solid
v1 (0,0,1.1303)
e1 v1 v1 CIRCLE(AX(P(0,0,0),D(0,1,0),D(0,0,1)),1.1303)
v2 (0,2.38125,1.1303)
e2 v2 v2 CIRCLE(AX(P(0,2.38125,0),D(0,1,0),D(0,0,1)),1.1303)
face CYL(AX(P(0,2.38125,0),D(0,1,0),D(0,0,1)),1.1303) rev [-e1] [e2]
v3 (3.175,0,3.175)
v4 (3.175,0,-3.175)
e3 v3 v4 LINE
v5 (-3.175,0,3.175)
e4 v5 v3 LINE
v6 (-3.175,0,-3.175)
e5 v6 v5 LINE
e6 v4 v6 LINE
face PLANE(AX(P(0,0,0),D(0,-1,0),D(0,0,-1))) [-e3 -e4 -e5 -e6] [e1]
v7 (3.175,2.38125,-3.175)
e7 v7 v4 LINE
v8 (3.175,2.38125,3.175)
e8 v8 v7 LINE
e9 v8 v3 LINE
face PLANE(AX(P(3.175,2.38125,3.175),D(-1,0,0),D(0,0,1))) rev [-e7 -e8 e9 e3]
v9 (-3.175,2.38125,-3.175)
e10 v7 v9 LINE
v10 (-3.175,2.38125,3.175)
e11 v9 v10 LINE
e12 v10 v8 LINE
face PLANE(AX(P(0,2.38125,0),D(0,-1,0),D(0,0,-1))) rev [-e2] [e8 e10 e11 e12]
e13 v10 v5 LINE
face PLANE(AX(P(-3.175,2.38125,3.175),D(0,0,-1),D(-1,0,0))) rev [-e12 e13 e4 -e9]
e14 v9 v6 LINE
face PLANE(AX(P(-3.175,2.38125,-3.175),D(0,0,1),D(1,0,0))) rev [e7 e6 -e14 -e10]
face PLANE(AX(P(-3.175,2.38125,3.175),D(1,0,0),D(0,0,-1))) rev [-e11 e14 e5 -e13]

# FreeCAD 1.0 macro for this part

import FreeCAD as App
import Part
import Sketcher
Q = App.Units.Quantity

doc = App.newDocument("Part")
params = doc.addObject("Spreadsheet::Sheet", "Params")
for row, (alias, value) in enumerate([
    ("sketch1_width", "0.25 in"),
    ("pad1_length", "0.09375 in"),
    ("sketch2_diameter", "0.089 in"),
    ("hole_diameter", "0.089 in"),
], start=1):
    params.set(f"A{row}", alias)
    params.set(f"B{row}", "=" + value)
    params.setAlias(f"B{row}", alias)

body = doc.addObject("PartDesign::Body", "Body")

sketch1 = doc.addObject("Sketcher::SketchObject", "Sketch")
body.addObject(sketch1)
sketch1.AttachmentSupport = (doc.XZ_Plane, [""])
sketch1.MapMode = "FlatFace"
sketch1.addGeometry(Part.LineSegment(App.Vector(-3, -3, 0), App.Vector(-3, 3, 0)), False)
sketch1.addGeometry(Part.LineSegment(App.Vector(-3, 3, 0), App.Vector(3, 3, 0)), False)
sketch1.addGeometry(Part.LineSegment(App.Vector(3, 3, 0), App.Vector(3, -3, 0)), False)
sketch1.addGeometry(Part.LineSegment(App.Vector(3, -3, 0), App.Vector(-3, -3, 0)), False)
sketch1.addConstraint(Sketcher.Constraint("Coincident", 0, 2, 1, 1))
sketch1.addConstraint(Sketcher.Constraint("Coincident", 1, 2, 2, 1))
sketch1.addConstraint(Sketcher.Constraint("Coincident", 2, 2, 3, 1))
sketch1.addConstraint(Sketcher.Constraint("Coincident", 3, 2, 0, 1))
sketch1.addConstraint(Sketcher.Constraint("Vertical", 0))
sketch1.addConstraint(Sketcher.Constraint("Horizontal", 1))
sketch1.addConstraint(Sketcher.Constraint("Vertical", 2))
sketch1.addConstraint(Sketcher.Constraint("Horizontal", 3))
sketch1.addConstraint(Sketcher.Constraint("Symmetric", 0, 2, 2, 2, -1, 1))
sketch1.addConstraint(Sketcher.Constraint("Equal", 3, 0))
sketch1.addConstraint(Sketcher.Constraint("DistanceX", 1, 1, 1, 2, Q("0.25 in")))
sketch1.setExpression("Constraints[10]", "Params.sketch1_width")
pad1 = doc.addObject("PartDesign::Pad", "Pad")
body.addObject(pad1)
pad1.Profile = sketch1
pad1.setExpression("Length", "Params.pad1_length")
pad1.Reversed = True

sketch2 = doc.addObject("Sketcher::SketchObject", "Sketch001")
body.addObject(sketch2)
sketch2.AttachmentSupport = (doc.XZ_Plane, [""])
sketch2.MapMode = "FlatFace"
sketch2.AttachmentOffset = App.Placement(App.Vector(0, 0, -0.09375 * 25.4), App.Rotation())
sketch2.addGeometry(Part.Circle(App.Vector(0, 0, 0), App.Vector(0, 0, 1), 1.1), False)
sketch2.addConstraint(Sketcher.Constraint("Coincident", 0, 3, -1, 1))
sketch2.addConstraint(Sketcher.Constraint("Diameter", 0, Q("0.089 in")))
sketch2.setExpression("Constraints[1]", "Params.sketch2_diameter")
doc.recompute()
hole = doc.addObject("PartDesign::Hole", "Hole")
body.addObject(hole)
hole.Profile = sketch2
hole.ThreadType = "None"
hole.setExpression("Diameter", "Params.hole_diameter")
hole.DepthType = "ThroughAll"
hole.Reversed = True

doc.recompute()
